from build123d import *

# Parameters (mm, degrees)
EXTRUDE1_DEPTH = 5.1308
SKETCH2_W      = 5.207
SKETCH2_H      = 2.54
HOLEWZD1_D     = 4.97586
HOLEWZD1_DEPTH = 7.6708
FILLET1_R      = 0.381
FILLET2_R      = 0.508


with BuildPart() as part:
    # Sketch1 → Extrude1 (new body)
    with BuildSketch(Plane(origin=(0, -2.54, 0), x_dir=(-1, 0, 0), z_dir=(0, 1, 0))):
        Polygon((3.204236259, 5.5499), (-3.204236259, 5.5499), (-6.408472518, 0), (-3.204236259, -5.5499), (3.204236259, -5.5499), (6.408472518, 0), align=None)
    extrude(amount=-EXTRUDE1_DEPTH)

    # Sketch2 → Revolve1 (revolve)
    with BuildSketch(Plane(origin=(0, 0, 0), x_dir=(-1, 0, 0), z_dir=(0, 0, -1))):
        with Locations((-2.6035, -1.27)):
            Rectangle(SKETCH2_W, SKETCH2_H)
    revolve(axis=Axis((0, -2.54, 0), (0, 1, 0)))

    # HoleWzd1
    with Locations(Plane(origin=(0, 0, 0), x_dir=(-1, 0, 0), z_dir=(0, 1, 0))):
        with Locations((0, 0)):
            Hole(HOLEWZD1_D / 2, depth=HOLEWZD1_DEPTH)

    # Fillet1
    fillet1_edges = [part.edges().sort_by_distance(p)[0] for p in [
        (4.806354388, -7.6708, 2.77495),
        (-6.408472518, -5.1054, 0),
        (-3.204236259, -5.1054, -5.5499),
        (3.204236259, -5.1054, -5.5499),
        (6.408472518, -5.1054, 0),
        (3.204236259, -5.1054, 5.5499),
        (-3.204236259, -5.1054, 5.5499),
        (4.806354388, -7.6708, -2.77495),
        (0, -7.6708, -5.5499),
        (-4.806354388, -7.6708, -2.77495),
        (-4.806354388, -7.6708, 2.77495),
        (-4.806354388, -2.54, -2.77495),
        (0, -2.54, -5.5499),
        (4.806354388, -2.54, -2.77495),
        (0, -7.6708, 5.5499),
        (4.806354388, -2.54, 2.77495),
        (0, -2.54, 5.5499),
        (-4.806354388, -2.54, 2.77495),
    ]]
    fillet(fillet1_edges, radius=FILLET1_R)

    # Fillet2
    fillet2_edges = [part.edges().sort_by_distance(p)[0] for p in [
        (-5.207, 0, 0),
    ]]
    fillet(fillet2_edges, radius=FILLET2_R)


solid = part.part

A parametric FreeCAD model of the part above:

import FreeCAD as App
import Part
import Sketcher
from FreeCAD import Vector
Q = App.Units.Quantity


def edges_at(feature, points):
    """Names of the edges that pass closest to the given points."""
    edges = feature.Shape.Edges
    near = lambda p: min(range(len(edges)), key=lambda i: edges[i].distToShape(Part.Vertex(*p))[0])
    return sorted({f"Edge{near(p) + 1}" for p in points})

doc = App.newDocument("Part")
body = doc.addObject("PartDesign::Body", "Body")

sketch1 = body.newObject("Sketcher::SketchObject", "Sketch")
sketch1.AttachmentSupport = (doc.getObject("XZ_Plane"), [""])
sketch1.MapMode = "FlatFace"
sketch1.AttachmentOffset = App.Placement(Vector(0, 0, 0.1 * 25.4), App.Rotation())
sketch1.addGeometry(Part.LineSegment(Vector(-3, 6, 0), Vector(3, 6, 0)), False)
sketch1.addGeometry(Part.LineSegment(Vector(3, 6, 0), Vector(6, 0, 0)), False)
sketch1.addGeometry(Part.LineSegment(Vector(6, 0, 0), Vector(3, -6, 0)), False)
sketch1.addGeometry(Part.LineSegment(Vector(3, -6, 0), Vector(-3, -6, 0)), False)
sketch1.addGeometry(Part.LineSegment(Vector(-3, -6, 0), Vector(-6, 0, 0)), False)
sketch1.addGeometry(Part.LineSegment(Vector(-6, 0, 0), Vector(-3, 6, 0)), False)
sketch1.addConstraint(Sketcher.Constraint("Coincident", 0, 2, 1, 1))
sketch1.addConstraint(Sketcher.Constraint("Coincident", 1, 2, 2, 1))
sketch1.addConstraint(Sketcher.Constraint("Coincident", 2, 2, 3, 1))
sketch1.addConstraint(Sketcher.Constraint("Coincident", 3, 2, 4, 1))
sketch1.addConstraint(Sketcher.Constraint("Coincident", 4, 2, 5, 1))
sketch1.addConstraint(Sketcher.Constraint("Coincident", 5, 2, 0, 1))
sketch1.addConstraint(Sketcher.Constraint("Horizontal", 0))
sketch1.addConstraint(Sketcher.Constraint("Horizontal", 3))
sketch1.addConstraint(Sketcher.Constraint("Symmetric", 0, 2, 3, 2, -1, 1))
sketch1.addConstraint(Sketcher.Constraint("Symmetric", 1, 2, 4, 2, -1, 1))
sketch1.addConstraint(Sketcher.Constraint("PointOnObject", 1, 2, -1))
sketch1.addConstraint(Sketcher.Constraint("Parallel", 2, 5))
sketch1.addConstraint(Sketcher.Constraint("Vertical", 0, 2, 2, 2))
sketch1.addConstraint(Sketcher.Constraint("Angle", 1, Q("-60 deg")))
sketch1.addConstraint(Sketcher.Constraint("DistanceY", 2, 2, 0, 2, Q("0.437 in")))
sketch1.addConstraint(Sketcher.Constraint("DistanceX", 0, 1, 0, 2, 6.408473))
pad1 = body.newObject("PartDesign::Pad", "Pad")
pad1.Profile = sketch1
pad1.Length = Q("0.202 in")

sketch2 = body.newObject("Sketcher::SketchObject", "Sketch001")
sketch2.AttachmentSupport = (doc.getObject("XY_Plane"), [""])
sketch2.MapMode = "FlatFace"
sketch2.addGeometry(Part.LineSegment(Vector(5.2, 0, 0), Vector(5.2, -2.5, 0)), False)
sketch2.addGeometry(Part.LineSegment(Vector(5.2, -2.5, 0), Vector(0, -2.5, 0)), False)
sketch2.addGeometry(Part.LineSegment(Vector(0, -2.5, 0), Vector(0, 0, 0)), False)
sketch2.addGeometry(Part.LineSegment(Vector(0, 0, 0), Vector(5.2, 0, 0)), False)
sketch2.addConstraint(Sketcher.Constraint("Coincident", 0, 2, 1, 1))
sketch2.addConstraint(Sketcher.Constraint("Coincident", 1, 2, 2, 1))
sketch2.addConstraint(Sketcher.Constraint("Coincident", 2, 2, 3, 1))
sketch2.addConstraint(Sketcher.Constraint("Coincident", 3, 2, 0, 1))
sketch2.addConstraint(Sketcher.Constraint("Vertical", 0))
sketch2.addConstraint(Sketcher.Constraint("Horizontal", 1))
sketch2.addConstraint(Sketcher.Constraint("Vertical", 2))
sketch2.addConstraint(Sketcher.Constraint("Horizontal", 3))
sketch2.addConstraint(Sketcher.Constraint("Coincident", 2, 2, -1, 1))
sketch2.addConstraint(Sketcher.Constraint("DistanceY", 0, 2, 0, 1, Q("0.1 in")))
sketch2.addConstraint(Sketcher.Constraint("DistanceX", 1, 2, 1, 1, Q("0.205 in")))
revolution = body.newObject("PartDesign::Revolution", "Revolution")
revolution.Profile = sketch2
revolution.ReferenceAxis = (sketch2, ["V_Axis"])
revolution.Angle = 360

sketch3 = body.newObject("Sketcher::SketchObject", "Sketch002")
sketch3.AttachmentSupport = (doc.getObject("XZ_Plane"), [""])
sketch3.MapMode = "FlatFace"
sketch3.addGeometry(Part.Circle(Vector(0, 0, 0), Vector(0, 0, 1), 2.5), False)
sketch3.addConstraint(Sketcher.Constraint("Coincident", 0, 3, -1, 1))
sketch3.addConstraint(Sketcher.Constraint("Diameter", 0, Q("0.1959 in")))
doc.recompute()
hole = body.newObject("PartDesign::Hole", "Hole")
hole.Profile = sketch3
hole.ThreadType = "None"
hole.Diameter = Q("0.1959 in")
hole.DepthType = "Dimension"
hole.Depth = Q("0.302 in")
hole.DrillPoint = "Flat"
hole.Reversed = True
doc.recompute()

fillet = body.newObject("PartDesign::Fillet", "Fillet")
fillet.Base = (hole, edges_at(hole, [
    (4.806, -7.671, 2.775),
    (-6.408, -5.105, 0),
    (-3.204, -5.105, -5.55),
    (3.204, -5.105, -5.55),
    (6.408, -5.105, 0),
    (3.204, -5.105, 5.55),
    (-3.204, -5.105, 5.55),
    (4.806, -7.671, -2.775),
    (0, -7.671, -5.55),
    (-4.806, -7.671, -2.775),
    (-4.806, -7.671, 2.775),
    (-4.806, -2.54, -2.775),
    (0, -2.54, -5.55),
    (4.806, -2.54, -2.775),
    (0, -7.671, 5.55),
    (4.806, -2.54, 2.775),
    (0, -2.54, 5.55),
    (-4.806, -2.54, 2.775),
]))
fillet.Radius = Q("0.015 in")
doc.recompute()

fillet2 = body.newObject("PartDesign::Fillet", "Fillet001")
fillet2.Base = (fillet, edges_at(fillet, [(-5.207, 0, 0)]))
fillet2.Radius = Q("0.02 in")

doc.recompute()
